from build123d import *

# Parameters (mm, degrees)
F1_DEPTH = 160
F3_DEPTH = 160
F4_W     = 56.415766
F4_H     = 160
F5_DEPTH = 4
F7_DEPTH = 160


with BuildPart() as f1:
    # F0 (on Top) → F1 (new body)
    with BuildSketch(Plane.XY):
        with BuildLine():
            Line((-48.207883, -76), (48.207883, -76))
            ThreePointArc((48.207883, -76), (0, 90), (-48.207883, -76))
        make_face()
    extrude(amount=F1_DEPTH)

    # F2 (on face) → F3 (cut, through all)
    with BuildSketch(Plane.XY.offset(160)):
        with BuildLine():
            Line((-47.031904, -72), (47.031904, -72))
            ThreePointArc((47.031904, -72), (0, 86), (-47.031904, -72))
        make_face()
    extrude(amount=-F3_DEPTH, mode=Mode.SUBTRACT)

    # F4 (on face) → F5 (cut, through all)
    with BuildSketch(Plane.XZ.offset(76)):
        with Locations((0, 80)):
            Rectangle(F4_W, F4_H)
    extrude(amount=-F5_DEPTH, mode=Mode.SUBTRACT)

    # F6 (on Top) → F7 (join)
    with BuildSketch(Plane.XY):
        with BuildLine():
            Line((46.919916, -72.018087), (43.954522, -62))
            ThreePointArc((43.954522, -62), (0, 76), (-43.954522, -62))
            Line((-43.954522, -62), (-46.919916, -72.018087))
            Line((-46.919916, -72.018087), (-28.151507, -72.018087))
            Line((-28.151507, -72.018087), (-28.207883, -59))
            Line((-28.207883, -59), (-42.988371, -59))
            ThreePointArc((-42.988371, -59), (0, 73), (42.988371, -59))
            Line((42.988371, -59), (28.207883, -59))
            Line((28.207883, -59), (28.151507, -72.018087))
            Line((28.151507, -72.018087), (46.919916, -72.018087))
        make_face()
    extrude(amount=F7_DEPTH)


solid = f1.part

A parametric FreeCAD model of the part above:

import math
import FreeCAD as App
import Part
import Sketcher
from FreeCAD import Vector
Q = App.Units.Quantity


def add_polygon(sketch, points):
    """Adds a closed chain of lines whose ends are joined by coincident constraints."""
    first, n = sketch.GeometryCount, len(points)
    for a, b in zip(points, points[1:] + points[:1]):
        sketch.addGeometry(Part.LineSegment(App.Vector(*a, 0), App.Vector(*b, 0)), False)
    for i in range(n):
        sketch.addConstraint(Sketcher.Constraint("Coincident", first + i, 2, first + (i + 1) % n, 1))

doc = App.newDocument("Part")
body = doc.addObject("PartDesign::Body", "Body")

# Sketch on XY plane
sketch1 = body.newObject("Sketcher::SketchObject", "Sketch")
sketch1.AttachmentSupport = (doc.getObject("XY_Plane"), [""])
sketch1.MapMode = "FlatFace"
sketch1.addGeometry([
    Part.LineSegment(Vector(-48.207883, -76, 0), Vector(48.207883, -76, 0)),
    Part.ArcOfCircle(Part.Circle(Vector(0, 0, 0), Vector(0, 0, 1), 90), math.radians(-57.612462), math.radians(237.612462)),
], False)
sketch1.addConstraint([
    Sketcher.Constraint("Coincident", 0, 1, 1, 2),
    Sketcher.Constraint("Coincident", 1, 1, 0, 2),
    Sketcher.Constraint("Horizontal", 0),
    Sketcher.Constraint("Coincident", 1, 3, -1, 1),
    Sketcher.Constraint("Radius", 1, Q("90 mm")),
    Sketcher.Constraint("DistanceY", 0, 1, -1, 1, Q("76 mm")),
])
pad1 = body.newObject("PartDesign::Pad", "Pad")
pad1.Profile = sketch1
pad1.Length = 160

# Sketch on XY plane
sketch2 = body.newObject("Sketcher::SketchObject", "Sketch001")
sketch2.AttachmentSupport = (doc.getObject("XY_Plane"), [""])
sketch2.MapMode = "FlatFace"
sketch2.AttachmentOffset = App.Placement(Vector(0, 0, 160), App.Rotation())
sketch2.addGeometry([
    Part.LineSegment(Vector(-47.031904, -72, 0), Vector(47.031904, -72, 0)),
    Part.ArcOfCircle(Part.Circle(Vector(0, 0, 0), Vector(0, 0, 1), 86), math.radians(-56.846592), math.radians(236.846592)),
], False)
sketch2.addConstraint([
    Sketcher.Constraint("Coincident", 0, 1, 1, 2),
    Sketcher.Constraint("Coincident", 1, 1, 0, 2),
    Sketcher.Constraint("Horizontal", 0),
    Sketcher.Constraint("Coincident", 1, 3, -1, 1),
    Sketcher.Constraint("Radius", 1, Q("86 mm")),
    Sketcher.Constraint("DistanceY", 0, 1, -1, 1, Q("72 mm")),
])
pocket1 = body.newObject("PartDesign::Pocket", "Pocket")
pocket1.Profile = sketch2
pocket1.Type = "ThroughAll"

# Sketch on XZ plane
sketch3 = body.newObject("Sketcher::SketchObject", "Sketch002")
sketch3.AttachmentSupport = (doc.getObject("XZ_Plane"), [""])
sketch3.MapMode = "FlatFace"
sketch3.AttachmentOffset = App.Placement(Vector(0, 0, 76), App.Rotation())
add_polygon(sketch3, [(-28.207883, 160), (-28.207883, 0), (28.207883, 0), (28.207883, 160)])  # lines 0-3
sketch3.addConstraint([
    Sketcher.Constraint("Vertical", 0),
    Sketcher.Constraint("Horizontal", 1),
    Sketcher.Constraint("Vertical", 2),
    Sketcher.Constraint("Horizontal", 3),
    Sketcher.Constraint("Symmetric", 0, 2, 1, 2, -1, 1),
    Sketcher.Constraint("DistanceY", 0, 2, 0, 1, Q("160 mm")),
    Sketcher.Constraint("DistanceX", 1, 1, 1, 2, Q("56.415766 mm")),
])
pocket2 = body.newObject("PartDesign::Pocket", "Pocket001")
pocket2.Profile = sketch3
pocket2.Length = 4

# Sketch on XY plane
sketch4 = body.newObject("Sketcher::SketchObject", "Sketch003")
sketch4.AttachmentSupport = (doc.getObject("XY_Plane"), [""])
sketch4.MapMode = "FlatFace"
sketch4.addGeometry([
    Part.LineSegment(Vector(46.919916, -72.018087, 0), Vector(43.954522, -62, 0)),  # 0
    Part.ArcOfCircle(Part.Circle(Vector(0, 0, 0), Vector(0, 0, 1), 76), math.radians(-54.665498), math.radians(234.665498)),  # 1
    Part.LineSegment(Vector(-43.954522, -62, 0), Vector(-46.919916, -72.018087, 0)),  # 2
    Part.LineSegment(Vector(-46.919916, -72.018087, 0), Vector(-28.151507, -72.018087, 0)),  # 3
    Part.LineSegment(Vector(-28.151507, -72.018087, 0), Vector(-28.207883, -59, 0)),  # 4
    Part.LineSegment(Vector(-28.207883, -59, 0), Vector(-42.988371, -59, 0)),  # 5
    Part.ArcOfCircle(Part.Circle(Vector(0, 0, 0), Vector(0, 0, 1), 73), math.radians(-53.922303), math.radians(233.922303)),  # 6
    Part.LineSegment(Vector(42.988371, -59, 0), Vector(28.207883, -59, 0)),  # 7
    Part.LineSegment(Vector(28.207883, -59, 0), Vector(28.151507, -72.018087, 0)),  # 8
    Part.LineSegment(Vector(28.151507, -72.018087, 0), Vector(46.919916, -72.018087, 0)),  # 9
], False)
sketch4.addConstraint([
    Sketcher.Constraint("Coincident", 0, 2, 1, 1),
    Sketcher.Constraint("Coincident", 1, 2, 2, 1),
    Sketcher.Constraint("Coincident", 2, 2, 3, 1),
    Sketcher.Constraint("Coincident", 3, 2, 4, 1),
    Sketcher.Constraint("Coincident", 4, 2, 5, 1),
    Sketcher.Constraint("Coincident", 5, 2, 6, 2),
    Sketcher.Constraint("Coincident", 6, 1, 7, 1),
    Sketcher.Constraint("Coincident", 7, 2, 8, 1),
    Sketcher.Constraint("Coincident", 8, 2, 9, 1),
    Sketcher.Constraint("Coincident", 9, 2, 0, 1),
    Sketcher.Constraint("Horizontal", 3),
    Sketcher.Constraint("Horizontal", 5),
    Sketcher.Constraint("Horizontal", 7),
    Sketcher.Constraint("Horizontal", 9),
    Sketcher.Constraint("Coincident", 1, 3, -1, 1),
    Sketcher.Constraint("Coincident", 6, 3, -1, 1),
    Sketcher.Constraint("Symmetric", 4, 2, 7, 2, -2),
    Sketcher.Constraint("Symmetric", 3, 2, 8, 2, -2),
    Sketcher.Constraint("Horizontal", 0, 2, 1, 2),
    Sketcher.Constraint("Equal", 3, 9),
    Sketcher.Constraint("Radius", 1, Q("76 mm")),
    Sketcher.Constraint("Radius", 6, Q("73 mm")),
    Sketcher.Constraint("DistanceY", 0, 2, -1, 1, Q("62 mm")),
    Sketcher.Constraint("DistanceY", 4, 2, -1, 1, Q("59 mm")),
    Sketcher.Constraint("DistanceX", 3, 1, 3, 2, Q("18.768409 mm")),
    Sketcher.Constraint("DistanceX", 5, 2, 5, 1, Q("14.780488 mm")),
    Sketcher.Constraint("Distance", 4, Q("13.018209 mm")),
    Sketcher.Constraint("DistanceX", 3, 2, 0, 2, Q("72.106029 mm")),
])
pad2 = body.newObject("PartDesign::Pad", "Pad001")
pad2.Profile = sketch4
pad2.Length = 160

doc.recompute()
